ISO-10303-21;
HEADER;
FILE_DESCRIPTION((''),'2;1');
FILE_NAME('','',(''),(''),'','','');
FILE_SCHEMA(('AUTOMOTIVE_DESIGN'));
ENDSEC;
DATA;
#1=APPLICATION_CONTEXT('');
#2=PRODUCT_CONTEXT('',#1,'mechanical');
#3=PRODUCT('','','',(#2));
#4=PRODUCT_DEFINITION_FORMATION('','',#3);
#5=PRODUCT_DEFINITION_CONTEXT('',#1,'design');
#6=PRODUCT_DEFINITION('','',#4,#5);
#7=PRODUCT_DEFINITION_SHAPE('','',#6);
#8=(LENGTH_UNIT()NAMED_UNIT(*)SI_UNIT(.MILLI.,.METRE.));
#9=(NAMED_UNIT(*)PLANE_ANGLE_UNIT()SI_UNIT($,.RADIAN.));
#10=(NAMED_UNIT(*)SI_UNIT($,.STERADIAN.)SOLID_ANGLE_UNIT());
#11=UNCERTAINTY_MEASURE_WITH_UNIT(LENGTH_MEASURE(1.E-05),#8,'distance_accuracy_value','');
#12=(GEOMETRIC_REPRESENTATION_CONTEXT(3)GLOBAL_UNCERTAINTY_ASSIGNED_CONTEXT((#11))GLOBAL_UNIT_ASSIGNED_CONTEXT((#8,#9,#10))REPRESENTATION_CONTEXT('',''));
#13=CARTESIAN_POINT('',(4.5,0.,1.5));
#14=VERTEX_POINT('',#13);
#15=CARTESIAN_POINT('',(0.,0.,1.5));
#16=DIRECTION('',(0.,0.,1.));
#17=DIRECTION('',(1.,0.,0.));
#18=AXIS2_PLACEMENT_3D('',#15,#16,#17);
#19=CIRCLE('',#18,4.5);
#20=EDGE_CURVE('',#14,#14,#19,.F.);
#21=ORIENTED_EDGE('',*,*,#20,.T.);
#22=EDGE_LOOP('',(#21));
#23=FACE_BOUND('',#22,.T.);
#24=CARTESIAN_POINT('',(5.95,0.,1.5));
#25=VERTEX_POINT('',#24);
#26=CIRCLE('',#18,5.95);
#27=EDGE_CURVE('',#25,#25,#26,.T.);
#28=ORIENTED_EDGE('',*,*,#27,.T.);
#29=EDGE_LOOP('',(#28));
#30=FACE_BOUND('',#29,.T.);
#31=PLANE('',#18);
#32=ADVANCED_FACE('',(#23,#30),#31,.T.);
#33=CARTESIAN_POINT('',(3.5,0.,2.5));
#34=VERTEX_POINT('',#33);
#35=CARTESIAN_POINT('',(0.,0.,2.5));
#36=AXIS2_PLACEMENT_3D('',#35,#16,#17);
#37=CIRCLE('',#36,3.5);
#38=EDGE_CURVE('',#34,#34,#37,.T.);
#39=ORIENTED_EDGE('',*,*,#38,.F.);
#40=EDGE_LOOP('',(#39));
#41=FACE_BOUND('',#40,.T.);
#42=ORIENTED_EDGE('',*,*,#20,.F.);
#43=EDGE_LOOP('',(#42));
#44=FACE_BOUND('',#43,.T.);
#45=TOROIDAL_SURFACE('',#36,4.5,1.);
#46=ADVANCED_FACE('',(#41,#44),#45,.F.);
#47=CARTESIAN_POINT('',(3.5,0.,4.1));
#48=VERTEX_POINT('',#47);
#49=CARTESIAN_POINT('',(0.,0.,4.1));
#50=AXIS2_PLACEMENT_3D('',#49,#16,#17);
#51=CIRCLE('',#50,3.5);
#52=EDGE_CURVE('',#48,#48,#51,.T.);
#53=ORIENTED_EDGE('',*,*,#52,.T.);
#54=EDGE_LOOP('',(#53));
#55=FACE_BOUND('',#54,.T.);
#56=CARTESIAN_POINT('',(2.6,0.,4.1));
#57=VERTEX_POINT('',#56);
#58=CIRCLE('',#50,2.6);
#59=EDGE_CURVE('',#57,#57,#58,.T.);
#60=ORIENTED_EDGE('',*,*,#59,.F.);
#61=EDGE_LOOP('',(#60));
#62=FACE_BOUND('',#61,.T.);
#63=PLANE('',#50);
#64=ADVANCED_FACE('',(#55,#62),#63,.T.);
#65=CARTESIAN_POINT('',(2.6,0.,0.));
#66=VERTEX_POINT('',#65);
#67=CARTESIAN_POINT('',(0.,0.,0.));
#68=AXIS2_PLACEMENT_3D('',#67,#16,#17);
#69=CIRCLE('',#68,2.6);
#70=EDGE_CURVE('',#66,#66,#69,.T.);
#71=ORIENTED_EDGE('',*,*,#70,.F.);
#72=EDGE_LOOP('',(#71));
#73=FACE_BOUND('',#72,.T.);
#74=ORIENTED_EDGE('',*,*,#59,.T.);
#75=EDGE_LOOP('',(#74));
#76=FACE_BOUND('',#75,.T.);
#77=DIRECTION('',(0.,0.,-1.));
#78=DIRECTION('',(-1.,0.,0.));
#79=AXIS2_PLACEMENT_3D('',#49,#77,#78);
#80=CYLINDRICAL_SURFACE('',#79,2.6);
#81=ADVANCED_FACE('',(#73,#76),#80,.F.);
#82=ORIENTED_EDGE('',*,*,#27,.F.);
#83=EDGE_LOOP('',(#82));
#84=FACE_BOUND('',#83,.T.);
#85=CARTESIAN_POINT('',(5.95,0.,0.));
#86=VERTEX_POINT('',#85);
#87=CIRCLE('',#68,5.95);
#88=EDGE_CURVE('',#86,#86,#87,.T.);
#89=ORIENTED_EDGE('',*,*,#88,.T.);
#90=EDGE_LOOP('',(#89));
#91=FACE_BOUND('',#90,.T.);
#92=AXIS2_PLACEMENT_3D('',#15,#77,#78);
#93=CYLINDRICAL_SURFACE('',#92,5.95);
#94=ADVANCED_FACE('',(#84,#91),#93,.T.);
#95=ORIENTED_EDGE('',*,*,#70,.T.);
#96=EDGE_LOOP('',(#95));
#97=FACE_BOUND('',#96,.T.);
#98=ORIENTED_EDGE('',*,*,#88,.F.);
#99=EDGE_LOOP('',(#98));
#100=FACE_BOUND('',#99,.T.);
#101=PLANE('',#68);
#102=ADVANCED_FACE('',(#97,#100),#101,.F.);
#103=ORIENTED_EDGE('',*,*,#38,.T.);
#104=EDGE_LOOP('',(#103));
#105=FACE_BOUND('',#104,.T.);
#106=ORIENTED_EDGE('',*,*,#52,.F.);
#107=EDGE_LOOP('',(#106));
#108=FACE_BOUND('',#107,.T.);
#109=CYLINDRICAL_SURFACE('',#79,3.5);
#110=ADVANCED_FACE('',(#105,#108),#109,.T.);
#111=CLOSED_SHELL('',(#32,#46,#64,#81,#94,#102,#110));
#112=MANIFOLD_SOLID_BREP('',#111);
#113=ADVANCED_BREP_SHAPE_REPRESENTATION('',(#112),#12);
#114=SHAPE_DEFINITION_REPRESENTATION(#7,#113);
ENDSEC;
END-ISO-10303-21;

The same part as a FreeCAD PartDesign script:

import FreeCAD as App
import Part
import Sketcher

V = App.Vector


def edges_at(feature, points):
    """Names of the edges that pass closest to the given points."""
    edges = feature.Shape.Edges
    near = lambda p: min(range(len(edges)), key=lambda i: edges[i].distToShape(Part.Vertex(*p))[0])
    return sorted({f"Edge{near(p) + 1}" for p in points})

doc = App.newDocument("Part")
body = doc.addObject("PartDesign::Body", "Body")

# Sketch on XY plane
sketch1 = body.newObject("Sketcher::SketchObject", "Sketch")
sketch1.AttachmentSupport = (doc.getObject("XY_Plane"), [""])
sketch1.MapMode = "FlatFace"
sketch1.addGeometry([
    Part.Circle(V(0, 0, 0), V(0, 0, 1), 5.95),
    Part.Circle(V(0, 0, 0), V(0, 0, 1), 3.5),
], False)
sketch1.addConstraint([
    Sketcher.Constraint("Coincident", 0, 3, -1, 1),
    Sketcher.Constraint("Coincident", 1, 3, -1, 1),
    Sketcher.Constraint("Diameter", 1, 7.0),
    Sketcher.Constraint("Diameter", 0, 11.9),
])
pad1 = body.newObject("PartDesign::Pad", "Pad")
pad1.Profile = sketch1
pad1.Length = 1.5

# Sketch on XY plane
sketch2 = body.newObject("Sketcher::SketchObject", "Sketch001")
sketch2.AttachmentSupport = (doc.getObject("XY_Plane"), [""])
sketch2.MapMode = "FlatFace"
sketch2.addGeometry(Part.Circle(V(0, 0, 0), V(0, 0, 1), 3.5), False)
sketch2.addConstraint([
    Sketcher.Constraint("Coincident", 0, 3, -1, 1),
    Sketcher.Constraint("Diameter", 0, 7.0),
])
pad2 = body.newObject("PartDesign::Pad", "Pad001")
pad2.Profile = sketch2
pad2.Length = 4.1

# Sketch on XY plane
sketch3 = body.newObject("Sketcher::SketchObject", "Sketch002")
sketch3.AttachmentSupport = (doc.getObject("XY_Plane"), [""])
sketch3.MapMode = "FlatFace"
sketch3.addGeometry(Part.Circle(V(0, 0, 0), V(0, 0, 1), 2.6), False)
sketch3.addConstraint([
    Sketcher.Constraint("Coincident", 0, 3, -1, 1),
    Sketcher.Constraint("Diameter", 0, 5.2),
])
pocket1 = body.newObject("PartDesign::Pocket", "Pocket")
pocket1.Profile = sketch3
pocket1.Type = "ThroughAll"
pocket1.Reversed = True
doc.recompute()

fillet = body.newObject("PartDesign::Fillet", "Fillet")
fillet.Base = (pocket1, edges_at(pocket1, [(-3.5, 0, 1.5)]))
fillet.Radius = 1

doc.recompute()
